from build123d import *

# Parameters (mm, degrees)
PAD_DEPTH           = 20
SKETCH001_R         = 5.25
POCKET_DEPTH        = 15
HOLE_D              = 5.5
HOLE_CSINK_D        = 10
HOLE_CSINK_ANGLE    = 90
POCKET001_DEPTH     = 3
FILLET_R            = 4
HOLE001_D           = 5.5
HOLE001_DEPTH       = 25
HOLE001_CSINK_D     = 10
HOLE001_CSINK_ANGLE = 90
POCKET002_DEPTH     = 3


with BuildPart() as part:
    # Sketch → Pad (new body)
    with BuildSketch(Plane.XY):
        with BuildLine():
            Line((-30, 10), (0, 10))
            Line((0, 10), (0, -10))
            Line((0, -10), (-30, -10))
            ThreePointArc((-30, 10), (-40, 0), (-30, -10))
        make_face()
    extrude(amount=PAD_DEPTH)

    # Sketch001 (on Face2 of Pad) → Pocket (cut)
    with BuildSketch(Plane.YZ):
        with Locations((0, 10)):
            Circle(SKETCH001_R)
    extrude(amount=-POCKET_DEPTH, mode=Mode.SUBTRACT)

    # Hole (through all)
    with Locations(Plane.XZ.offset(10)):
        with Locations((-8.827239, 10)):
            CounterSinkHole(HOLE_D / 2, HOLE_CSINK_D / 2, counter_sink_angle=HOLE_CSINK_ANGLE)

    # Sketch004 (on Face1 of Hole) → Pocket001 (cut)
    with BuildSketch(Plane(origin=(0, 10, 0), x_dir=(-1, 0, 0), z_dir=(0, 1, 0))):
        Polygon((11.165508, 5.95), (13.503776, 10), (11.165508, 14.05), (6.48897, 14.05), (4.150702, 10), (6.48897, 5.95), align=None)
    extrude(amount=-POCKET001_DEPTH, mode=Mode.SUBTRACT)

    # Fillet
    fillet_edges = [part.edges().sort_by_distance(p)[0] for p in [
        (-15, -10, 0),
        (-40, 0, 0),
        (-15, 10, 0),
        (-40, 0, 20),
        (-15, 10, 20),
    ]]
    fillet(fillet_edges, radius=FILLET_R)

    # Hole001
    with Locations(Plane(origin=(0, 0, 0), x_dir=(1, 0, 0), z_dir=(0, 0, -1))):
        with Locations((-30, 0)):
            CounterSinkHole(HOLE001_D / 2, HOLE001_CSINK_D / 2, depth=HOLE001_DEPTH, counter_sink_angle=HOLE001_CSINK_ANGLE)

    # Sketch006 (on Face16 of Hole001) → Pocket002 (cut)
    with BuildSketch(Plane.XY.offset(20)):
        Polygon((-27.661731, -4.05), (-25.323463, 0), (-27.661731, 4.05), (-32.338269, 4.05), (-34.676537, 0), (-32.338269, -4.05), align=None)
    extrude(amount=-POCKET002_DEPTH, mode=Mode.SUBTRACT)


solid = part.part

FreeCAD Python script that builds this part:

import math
import FreeCAD as App
import Part
import Sketcher

V = App.Vector
Q = App.Units.Quantity


def edges_at(feature, points):
    """Names of the edges that pass closest to the given points."""
    edges = feature.Shape.Edges
    near = lambda p: min(range(len(edges)), key=lambda i: edges[i].distToShape(Part.Vertex(*p))[0])
    return sorted({f"Edge{near(p) + 1}" for p in points})

doc = App.newDocument("Part")
body = doc.addObject("PartDesign::Body", "Body")

# Sketch on XY plane
sketch1 = body.newObject("Sketcher::SketchObject", "Sketch")
sketch1.AttachmentSupport = (doc.getObject("XY_Plane"), [""])
sketch1.MapMode = "FlatFace"
sketch1.addGeometry([
    Part.LineSegment(V(0, 10, 0), V(-30, 10, 0)),
    Part.ArcOfCircle(Part.Circle(V(-30, 0, 0), V(0, 0, 1), 10), math.radians(90), math.radians(270)),
    Part.LineSegment(V(-30, -10, 0), V(0, -10, 0)),
    Part.LineSegment(V(0, -10, 0), V(0, 10, 0)),
], False)
sketch1.addConstraint([
    Sketcher.Constraint("Tangent", 0, 2, 1, 1),
    Sketcher.Constraint("Tangent", 1, 2, 2, 1),
    Sketcher.Constraint("Coincident", 2, 2, 3, 1),
    Sketcher.Constraint("Coincident", 3, 2, 0, 1),
    Sketcher.Constraint("Horizontal", 0),
    Sketcher.Constraint("Horizontal", 2),
    Sketcher.Constraint("Vertical", 3),
    Sketcher.Constraint("Symmetric", 2, 2, 3, 2, -1, 1),
    Sketcher.Constraint("Radius", 1, 10.0),
    Sketcher.Constraint("DistanceX", 0, 2, 0, 1, 30.0),
])
pad1 = body.newObject("PartDesign::Pad", "Pad")
pad1.Profile = sketch1
pad1.Length = 20

# Sketch on YZ plane
sketch2 = body.newObject("Sketcher::SketchObject", "Sketch001")
sketch2.AttachmentSupport = (doc.getObject("YZ_Plane"), [""])
sketch2.MapMode = "FlatFace"
sketch2.addGeometry(Part.Circle(V(0, 10, 0), V(0, 0, 1), 5), False)
sketch2.addConstraint([
    Sketcher.Constraint("PointOnObject", 0, 3, -2),
    Sketcher.Constraint("Diameter", 0, 10.5),
    Sketcher.Constraint("DistanceY", -1, 1, 0, 3, 10.0),
])
pocket1 = body.newObject("PartDesign::Pocket", "Pocket")
pocket1.Profile = sketch2
pocket1.Length = 15

# Sketch on XZ plane
sketch3 = body.newObject("Sketcher::SketchObject", "Sketch002")
sketch3.AttachmentSupport = (doc.getObject("XZ_Plane"), [""])
sketch3.MapMode = "FlatFace"
sketch3.AttachmentOffset = App.Placement(V(0, 0, 10), App.Rotation())
sketch3.addGeometry(Part.Circle(V(-8.8, 10, 0), V(0, 0, 1), 2.8), False)
sketch3.addConstraint([
    Sketcher.Constraint("Diameter", 0, 5.5),
    Sketcher.Constraint("DistanceY", -1, 1, 0, 3, 10.0),
    Sketcher.Constraint("DistanceX", 0, 3, -1, 1, 8.827239),
])
doc.recompute()
hole = body.newObject("PartDesign::Hole", "Hole")
hole.Profile = sketch3
hole.ThreadType = "None"
hole.Diameter = 5.5
hole.DepthType = "ThroughAll"
hole.HoleCutType = "Countersink"
hole.HoleCutDiameter = 10
hole.HoleCutCountersinkAngle = 90

# Sketch on XZ plane
sketch4 = body.newObject("Sketcher::SketchObject", "Sketch003")
sketch4.AttachmentSupport = (doc.getObject("XZ_Plane"), [""])
sketch4.MapMode = "FlatFace"
sketch4.AttachmentOffset = App.Placement(V(0, 0, -10), App.Rotation())
sketch4.addGeometry([
    Part.LineSegment(V(-11.2, 6, 0), V(-13.5, 10, 0)),  # 0
    Part.LineSegment(V(-13.5, 10, 0), V(-11.2, 14.1, 0)),  # 1
    Part.LineSegment(V(-11.2, 14.1, 0), V(-6.5, 14.1, 0)),  # 2
    Part.LineSegment(V(-6.5, 14.1, 0), V(-4.2, 10, 0)),  # 3
    Part.LineSegment(V(-4.2, 10, 0), V(-6.5, 6, 0)),  # 4
    Part.LineSegment(V(-6.5, 6, 0), V(-11.2, 6, 0)),  # 5
], False)
sketch4.addConstraint([
    Sketcher.Constraint("Coincident", 0, 2, 1, 1),
    Sketcher.Constraint("Coincident", 1, 2, 2, 1),
    Sketcher.Constraint("Coincident", 2, 2, 3, 1),
    Sketcher.Constraint("Coincident", 3, 2, 4, 1),
    Sketcher.Constraint("Coincident", 4, 2, 5, 1),
    Sketcher.Constraint("Coincident", 5, 2, 0, 1),
    Sketcher.Constraint("Horizontal", 2),
    Sketcher.Constraint("Horizontal", 5),
    Sketcher.Constraint("Parallel", 0, 3),
    Sketcher.Constraint("Parallel", 1, 4),
    Sketcher.Constraint("Horizontal", 0, 2, 3, 2),
    Sketcher.Constraint("Vertical", 2, 2, 4, 2),
    Sketcher.Constraint("Vertical", 1, 2, 5, 2),
    Sketcher.Constraint("Angle", 0, Q("119.999994 deg")),
    Sketcher.Constraint("DistanceY", -1, 1, 0, 2, 10.0),
    Sketcher.Constraint("DistanceY", 4, 2, 2, 2, 8.1),
    Sketcher.Constraint("DistanceX", 2, 1, 2, 2, 4.676538),
    Sketcher.Constraint("DistanceX", 1, 2, -1, 1, 11.165508),
])
pocket2 = body.newObject("PartDesign::Pocket", "Pocket001")
pocket2.Profile = sketch4
pocket2.Length = 3
pocket2.Reversed = True
doc.recompute()

fillet = body.newObject("PartDesign::Fillet", "Fillet")
fillet.Base = (pocket2, edges_at(pocket2, [
    (-15, -10, 0),
    (-40, 0, 0),
    (-15, 10, 0),
    (-40, 0, 20),
    (-15, 10, 20),
]))
fillet.Radius = 4

# Sketch on XY plane
sketch5 = body.newObject("Sketcher::SketchObject", "Sketch004")
sketch5.AttachmentSupport = (doc.getObject("XY_Plane"), [""])
sketch5.MapMode = "FlatFace"
sketch5.addGeometry(Part.Circle(V(-30, 0, 0), V(0, 0, 1), 2.8), False)
sketch5.addConstraint([
    Sketcher.Constraint("PointOnObject", 0, 3, -1),
    Sketcher.Constraint("Diameter", 0, 5.5),
    Sketcher.Constraint("DistanceX", 0, 3, -1, 1, 30.0),
])
doc.recompute()
hole2 = body.newObject("PartDesign::Hole", "Hole001")
hole2.Profile = sketch5
hole2.ThreadType = "None"
hole2.Diameter = 5.5
hole2.DepthType = "Dimension"
hole2.Depth = 25
hole2.DrillPoint = "Flat"
hole2.HoleCutType = "Countersink"
hole2.HoleCutDiameter = 10
hole2.HoleCutCountersinkAngle = 90
hole2.Reversed = True

# Sketch on XY plane
sketch6 = body.newObject("Sketcher::SketchObject", "Sketch005")
sketch6.AttachmentSupport = (doc.getObject("XY_Plane"), [""])
sketch6.MapMode = "FlatFace"
sketch6.AttachmentOffset = App.Placement(V(0, 0, 20), App.Rotation())
sketch6.addGeometry([
    Part.LineSegment(V(-27.7, -4, 0), V(-25.3, 0, 0)),  # 0
    Part.LineSegment(V(-25.3, 0, 0), V(-27.7, 4, 0)),  # 1
    Part.LineSegment(V(-27.7, 4, 0), V(-32.3, 4, 0)),  # 2
    Part.LineSegment(V(-32.3, 4, 0), V(-34.7, 0, 0)),  # 3
    Part.LineSegment(V(-34.7, 0, 0), V(-32.3, -4, 0)),  # 4
    Part.LineSegment(V(-32.3, -4, 0), V(-27.7, -4, 0)),  # 5
], False)
sketch6.addConstraint([
    Sketcher.Constraint("Coincident", 0, 2, 1, 1),
    Sketcher.Constraint("Coincident", 1, 2, 2, 1),
    Sketcher.Constraint("Coincident", 2, 2, 3, 1),
    Sketcher.Constraint("Coincident", 3, 2, 4, 1),
    Sketcher.Constraint("Coincident", 4, 2, 5, 1),
    Sketcher.Constraint("Coincident", 5, 2, 0, 1),
    Sketcher.Constraint("Horizontal", 2),
    Sketcher.Constraint("Horizontal", 5),
    Sketcher.Constraint("Symmetric", 2, 2, 4, 2, -1),
    Sketcher.Constraint("PointOnObject", 0, 2, -1),
    Sketcher.Constraint("PointOnObject", 3, 2, -1),
    Sketcher.Constraint("Parallel", 0, 3),
    Sketcher.Constraint("Parallel", 1, 4),
    Sketcher.Constraint("Angle", 0, Q("60.000006 deg")),
    Sketcher.Constraint("DistanceY", 4, 2, 2, 2, 8.1),
    Sketcher.Constraint("DistanceX", 2, 2, 2, 1, 4.676538),
    Sketcher.Constraint("DistanceX", 1, 2, -1, 1, 27.661731),
])
pocket3 = body.newObject("PartDesign::Pocket", "Pocket002")
pocket3.Profile = sketch6
pocket3.Length = 3

doc.recompute()
